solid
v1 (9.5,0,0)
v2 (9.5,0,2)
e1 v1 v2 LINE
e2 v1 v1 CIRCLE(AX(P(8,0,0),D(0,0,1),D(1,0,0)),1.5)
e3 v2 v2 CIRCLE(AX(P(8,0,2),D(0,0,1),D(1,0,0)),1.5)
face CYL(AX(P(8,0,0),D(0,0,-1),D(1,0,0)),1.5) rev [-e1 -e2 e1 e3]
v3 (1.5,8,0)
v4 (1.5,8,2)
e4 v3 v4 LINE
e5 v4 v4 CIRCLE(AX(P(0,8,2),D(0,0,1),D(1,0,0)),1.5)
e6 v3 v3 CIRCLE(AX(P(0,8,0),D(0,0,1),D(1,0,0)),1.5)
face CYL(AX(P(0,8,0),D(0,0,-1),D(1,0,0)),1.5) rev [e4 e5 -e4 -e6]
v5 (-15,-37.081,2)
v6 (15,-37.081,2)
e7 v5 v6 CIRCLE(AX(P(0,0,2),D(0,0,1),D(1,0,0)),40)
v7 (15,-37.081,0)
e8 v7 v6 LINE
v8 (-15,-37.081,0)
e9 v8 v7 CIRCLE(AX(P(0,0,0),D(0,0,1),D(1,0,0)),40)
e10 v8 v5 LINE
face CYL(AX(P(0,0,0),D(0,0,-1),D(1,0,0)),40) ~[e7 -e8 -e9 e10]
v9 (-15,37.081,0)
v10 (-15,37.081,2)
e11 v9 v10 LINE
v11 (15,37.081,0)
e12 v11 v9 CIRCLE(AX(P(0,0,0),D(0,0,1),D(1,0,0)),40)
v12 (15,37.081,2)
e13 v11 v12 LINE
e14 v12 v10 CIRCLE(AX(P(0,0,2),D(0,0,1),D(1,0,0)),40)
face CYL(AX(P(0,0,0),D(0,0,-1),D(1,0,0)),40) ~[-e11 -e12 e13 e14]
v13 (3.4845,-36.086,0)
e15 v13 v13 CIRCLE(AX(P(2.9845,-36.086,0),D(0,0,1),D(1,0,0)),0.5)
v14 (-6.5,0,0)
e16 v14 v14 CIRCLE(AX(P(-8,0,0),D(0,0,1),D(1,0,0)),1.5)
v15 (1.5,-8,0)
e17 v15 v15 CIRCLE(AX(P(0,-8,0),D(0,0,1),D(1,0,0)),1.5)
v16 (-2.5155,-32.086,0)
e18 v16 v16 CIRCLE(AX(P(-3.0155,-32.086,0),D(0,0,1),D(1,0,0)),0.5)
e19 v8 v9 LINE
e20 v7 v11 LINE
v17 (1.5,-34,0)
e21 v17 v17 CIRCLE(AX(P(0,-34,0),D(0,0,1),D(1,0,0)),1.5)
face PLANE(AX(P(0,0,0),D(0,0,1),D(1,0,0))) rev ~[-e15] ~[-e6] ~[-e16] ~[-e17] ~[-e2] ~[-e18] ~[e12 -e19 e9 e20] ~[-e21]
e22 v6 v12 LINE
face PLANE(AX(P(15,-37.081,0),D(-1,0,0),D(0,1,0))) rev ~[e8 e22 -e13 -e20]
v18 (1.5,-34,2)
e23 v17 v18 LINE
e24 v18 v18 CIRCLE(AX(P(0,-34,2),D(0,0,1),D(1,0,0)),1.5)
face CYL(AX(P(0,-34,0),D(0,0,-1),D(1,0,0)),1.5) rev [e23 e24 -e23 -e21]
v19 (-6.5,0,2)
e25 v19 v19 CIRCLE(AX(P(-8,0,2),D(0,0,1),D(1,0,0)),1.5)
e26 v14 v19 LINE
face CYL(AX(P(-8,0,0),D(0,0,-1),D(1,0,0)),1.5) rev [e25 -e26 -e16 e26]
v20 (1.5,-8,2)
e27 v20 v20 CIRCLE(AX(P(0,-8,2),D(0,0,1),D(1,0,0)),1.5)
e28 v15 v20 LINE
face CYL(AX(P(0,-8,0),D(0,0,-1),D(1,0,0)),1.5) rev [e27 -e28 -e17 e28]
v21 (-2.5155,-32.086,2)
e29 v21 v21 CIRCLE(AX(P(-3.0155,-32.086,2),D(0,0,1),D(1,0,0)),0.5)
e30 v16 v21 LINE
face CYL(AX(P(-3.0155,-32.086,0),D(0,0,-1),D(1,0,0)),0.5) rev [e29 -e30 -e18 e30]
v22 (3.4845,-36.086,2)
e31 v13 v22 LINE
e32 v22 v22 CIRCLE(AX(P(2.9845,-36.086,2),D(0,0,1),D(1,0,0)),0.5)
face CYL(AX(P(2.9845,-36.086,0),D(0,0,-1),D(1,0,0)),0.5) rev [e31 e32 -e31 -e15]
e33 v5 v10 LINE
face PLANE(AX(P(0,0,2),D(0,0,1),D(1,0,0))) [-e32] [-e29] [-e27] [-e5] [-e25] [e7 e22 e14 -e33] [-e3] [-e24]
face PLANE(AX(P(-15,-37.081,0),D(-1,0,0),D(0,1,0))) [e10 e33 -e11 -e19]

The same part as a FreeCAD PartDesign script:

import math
import FreeCAD as App
import Part
import Sketcher

V = App.Vector
Q = App.Units.Quantity

doc = App.newDocument("Part")
body = doc.addObject("PartDesign::Body", "Body")

# Sketch on XY plane
sketch1 = doc.addObject("Sketcher::SketchObject", "Sketch")
body.addObject(sketch1)
sketch1.AttachmentSupport = (doc.XY_Plane, [""])
sketch1.MapMode = "FlatFace"
sketch1.addGeometry(Part.LineSegment(V(15, -37.1, 0), V(15, 37.1, 0)), False)
sketch1.addGeometry(Part.ArcOfCircle(Part.Circle(V(0, 0, 0), V(0, 0, 1), 40), math.radians(68), math.radians(112)), False)
sketch1.addGeometry(Part.LineSegment(V(-15, 37.1, 0), V(-15, -37.1, 0)), False)
sketch1.addGeometry(Part.ArcOfCircle(Part.Circle(V(0, 0, 0), V(0, 0, 1), 40), math.radians(-112), math.radians(-68)), False)
sketch1.addGeometry(Part.Circle(V(-3, -32.1, 0), V(0, 0, 1), 0.5), False)
sketch1.addGeometry(Part.Circle(V(3, -36.1, 0), V(0, 0, 1), 0.5), False)
sketch1.addGeometry(Part.Circle(V(0, -34, 0), V(0, 0, 1), 1.5), False)
sketch1.addGeometry(Part.Circle(V(0, -8, 0), V(0, 0, 1), 1.5), False)
sketch1.addGeometry(Part.Circle(V(-8, 0, 0), V(0, 0, 1), 1.5), False)
sketch1.addGeometry(Part.Circle(V(8, 0, 0), V(0, 0, 1), 1.5), False)
sketch1.addGeometry(Part.Circle(V(0, 8, 0), V(0, 0, 1), 1.5), False)
sketch1.addConstraint(Sketcher.Constraint("Coincident", 0, 2, 1, 1))
sketch1.addConstraint(Sketcher.Constraint("Coincident", 1, 2, 2, 1))
sketch1.addConstraint(Sketcher.Constraint("Coincident", 2, 2, 3, 1))
sketch1.addConstraint(Sketcher.Constraint("Coincident", 3, 2, 0, 1))
sketch1.addConstraint(Sketcher.Constraint("Vertical", 0))
sketch1.addConstraint(Sketcher.Constraint("Vertical", 2))
sketch1.addConstraint(Sketcher.Constraint("Coincident", 1, 3, -1, 1))
sketch1.addConstraint(Sketcher.Constraint("Coincident", 3, 3, -1, 1))
sketch1.addConstraint(Sketcher.Constraint("Equal", 1, 3))
sketch1.addConstraint(Sketcher.Constraint("Equal", 4, 5))
sketch1.addConstraint(Sketcher.Constraint("Equal", 6, 7))
sketch1.addConstraint(Sketcher.Constraint("Equal", 7, 8))
sketch1.addConstraint(Sketcher.Constraint("Equal", 8, 9))
sketch1.addConstraint(Sketcher.Constraint("Equal", 9, 10))
sketch1.addConstraint(Sketcher.Constraint("Symmetric", 8, 3, 9, 3, -1, 1))
sketch1.addConstraint(Sketcher.Constraint("Symmetric", 7, 3, 10, 3, -1, 1))
sketch1.addConstraint(Sketcher.Constraint("PointOnObject", 6, 3, -2))
sketch1.addConstraint(Sketcher.Constraint("PointOnObject", 7, 3, -2))
sketch1.addConstraint(Sketcher.Constraint("PointOnObject", 8, 3, -1))
sketch1.addConstraint(Sketcher.Constraint("Horizontal", 0, 2, 1, 2))
sketch1.addConstraint(Sketcher.Constraint("Diameter", 6, Q("3 mm")))
sketch1.addConstraint(Sketcher.Constraint("Radius", 1, Q("40 mm")))
sketch1.addConstraint(Sketcher.Constraint("Diameter", 4, Q("1 mm")))
sketch1.addConstraint(Sketcher.Constraint("DistanceY", 6, 3, -1, 1, Q("34 mm")))
sketch1.addConstraint(Sketcher.Constraint("DistanceY", 7, 3, -1, 1, Q("8 mm")))
sketch1.addConstraint(Sketcher.Constraint("DistanceX", 8, 3, -1, 1, Q("8 mm")))
sketch1.addConstraint(Sketcher.Constraint("DistanceX", -1, 1, 0, 2, Q("15 mm")))
sketch1.addConstraint(Sketcher.Constraint("DistanceX", 4, 3, 5, 3, Q("6 mm")))
sketch1.addConstraint(Sketcher.Constraint("DistanceY", 5, 3, 4, 3, Q("4 mm")))
sketch1.addConstraint(Sketcher.Constraint("DistanceY", 4, 3, -1, 1, Q("32.086 mm")))
sketch1.addConstraint(Sketcher.Constraint("DistanceX", 4, 3, -1, 1, Q("3.0155 mm")))
pad1 = doc.addObject("PartDesign::Pad", "Pad")
body.addObject(pad1)
pad1.Profile = sketch1
pad1.Length = 2

doc.recompute()
